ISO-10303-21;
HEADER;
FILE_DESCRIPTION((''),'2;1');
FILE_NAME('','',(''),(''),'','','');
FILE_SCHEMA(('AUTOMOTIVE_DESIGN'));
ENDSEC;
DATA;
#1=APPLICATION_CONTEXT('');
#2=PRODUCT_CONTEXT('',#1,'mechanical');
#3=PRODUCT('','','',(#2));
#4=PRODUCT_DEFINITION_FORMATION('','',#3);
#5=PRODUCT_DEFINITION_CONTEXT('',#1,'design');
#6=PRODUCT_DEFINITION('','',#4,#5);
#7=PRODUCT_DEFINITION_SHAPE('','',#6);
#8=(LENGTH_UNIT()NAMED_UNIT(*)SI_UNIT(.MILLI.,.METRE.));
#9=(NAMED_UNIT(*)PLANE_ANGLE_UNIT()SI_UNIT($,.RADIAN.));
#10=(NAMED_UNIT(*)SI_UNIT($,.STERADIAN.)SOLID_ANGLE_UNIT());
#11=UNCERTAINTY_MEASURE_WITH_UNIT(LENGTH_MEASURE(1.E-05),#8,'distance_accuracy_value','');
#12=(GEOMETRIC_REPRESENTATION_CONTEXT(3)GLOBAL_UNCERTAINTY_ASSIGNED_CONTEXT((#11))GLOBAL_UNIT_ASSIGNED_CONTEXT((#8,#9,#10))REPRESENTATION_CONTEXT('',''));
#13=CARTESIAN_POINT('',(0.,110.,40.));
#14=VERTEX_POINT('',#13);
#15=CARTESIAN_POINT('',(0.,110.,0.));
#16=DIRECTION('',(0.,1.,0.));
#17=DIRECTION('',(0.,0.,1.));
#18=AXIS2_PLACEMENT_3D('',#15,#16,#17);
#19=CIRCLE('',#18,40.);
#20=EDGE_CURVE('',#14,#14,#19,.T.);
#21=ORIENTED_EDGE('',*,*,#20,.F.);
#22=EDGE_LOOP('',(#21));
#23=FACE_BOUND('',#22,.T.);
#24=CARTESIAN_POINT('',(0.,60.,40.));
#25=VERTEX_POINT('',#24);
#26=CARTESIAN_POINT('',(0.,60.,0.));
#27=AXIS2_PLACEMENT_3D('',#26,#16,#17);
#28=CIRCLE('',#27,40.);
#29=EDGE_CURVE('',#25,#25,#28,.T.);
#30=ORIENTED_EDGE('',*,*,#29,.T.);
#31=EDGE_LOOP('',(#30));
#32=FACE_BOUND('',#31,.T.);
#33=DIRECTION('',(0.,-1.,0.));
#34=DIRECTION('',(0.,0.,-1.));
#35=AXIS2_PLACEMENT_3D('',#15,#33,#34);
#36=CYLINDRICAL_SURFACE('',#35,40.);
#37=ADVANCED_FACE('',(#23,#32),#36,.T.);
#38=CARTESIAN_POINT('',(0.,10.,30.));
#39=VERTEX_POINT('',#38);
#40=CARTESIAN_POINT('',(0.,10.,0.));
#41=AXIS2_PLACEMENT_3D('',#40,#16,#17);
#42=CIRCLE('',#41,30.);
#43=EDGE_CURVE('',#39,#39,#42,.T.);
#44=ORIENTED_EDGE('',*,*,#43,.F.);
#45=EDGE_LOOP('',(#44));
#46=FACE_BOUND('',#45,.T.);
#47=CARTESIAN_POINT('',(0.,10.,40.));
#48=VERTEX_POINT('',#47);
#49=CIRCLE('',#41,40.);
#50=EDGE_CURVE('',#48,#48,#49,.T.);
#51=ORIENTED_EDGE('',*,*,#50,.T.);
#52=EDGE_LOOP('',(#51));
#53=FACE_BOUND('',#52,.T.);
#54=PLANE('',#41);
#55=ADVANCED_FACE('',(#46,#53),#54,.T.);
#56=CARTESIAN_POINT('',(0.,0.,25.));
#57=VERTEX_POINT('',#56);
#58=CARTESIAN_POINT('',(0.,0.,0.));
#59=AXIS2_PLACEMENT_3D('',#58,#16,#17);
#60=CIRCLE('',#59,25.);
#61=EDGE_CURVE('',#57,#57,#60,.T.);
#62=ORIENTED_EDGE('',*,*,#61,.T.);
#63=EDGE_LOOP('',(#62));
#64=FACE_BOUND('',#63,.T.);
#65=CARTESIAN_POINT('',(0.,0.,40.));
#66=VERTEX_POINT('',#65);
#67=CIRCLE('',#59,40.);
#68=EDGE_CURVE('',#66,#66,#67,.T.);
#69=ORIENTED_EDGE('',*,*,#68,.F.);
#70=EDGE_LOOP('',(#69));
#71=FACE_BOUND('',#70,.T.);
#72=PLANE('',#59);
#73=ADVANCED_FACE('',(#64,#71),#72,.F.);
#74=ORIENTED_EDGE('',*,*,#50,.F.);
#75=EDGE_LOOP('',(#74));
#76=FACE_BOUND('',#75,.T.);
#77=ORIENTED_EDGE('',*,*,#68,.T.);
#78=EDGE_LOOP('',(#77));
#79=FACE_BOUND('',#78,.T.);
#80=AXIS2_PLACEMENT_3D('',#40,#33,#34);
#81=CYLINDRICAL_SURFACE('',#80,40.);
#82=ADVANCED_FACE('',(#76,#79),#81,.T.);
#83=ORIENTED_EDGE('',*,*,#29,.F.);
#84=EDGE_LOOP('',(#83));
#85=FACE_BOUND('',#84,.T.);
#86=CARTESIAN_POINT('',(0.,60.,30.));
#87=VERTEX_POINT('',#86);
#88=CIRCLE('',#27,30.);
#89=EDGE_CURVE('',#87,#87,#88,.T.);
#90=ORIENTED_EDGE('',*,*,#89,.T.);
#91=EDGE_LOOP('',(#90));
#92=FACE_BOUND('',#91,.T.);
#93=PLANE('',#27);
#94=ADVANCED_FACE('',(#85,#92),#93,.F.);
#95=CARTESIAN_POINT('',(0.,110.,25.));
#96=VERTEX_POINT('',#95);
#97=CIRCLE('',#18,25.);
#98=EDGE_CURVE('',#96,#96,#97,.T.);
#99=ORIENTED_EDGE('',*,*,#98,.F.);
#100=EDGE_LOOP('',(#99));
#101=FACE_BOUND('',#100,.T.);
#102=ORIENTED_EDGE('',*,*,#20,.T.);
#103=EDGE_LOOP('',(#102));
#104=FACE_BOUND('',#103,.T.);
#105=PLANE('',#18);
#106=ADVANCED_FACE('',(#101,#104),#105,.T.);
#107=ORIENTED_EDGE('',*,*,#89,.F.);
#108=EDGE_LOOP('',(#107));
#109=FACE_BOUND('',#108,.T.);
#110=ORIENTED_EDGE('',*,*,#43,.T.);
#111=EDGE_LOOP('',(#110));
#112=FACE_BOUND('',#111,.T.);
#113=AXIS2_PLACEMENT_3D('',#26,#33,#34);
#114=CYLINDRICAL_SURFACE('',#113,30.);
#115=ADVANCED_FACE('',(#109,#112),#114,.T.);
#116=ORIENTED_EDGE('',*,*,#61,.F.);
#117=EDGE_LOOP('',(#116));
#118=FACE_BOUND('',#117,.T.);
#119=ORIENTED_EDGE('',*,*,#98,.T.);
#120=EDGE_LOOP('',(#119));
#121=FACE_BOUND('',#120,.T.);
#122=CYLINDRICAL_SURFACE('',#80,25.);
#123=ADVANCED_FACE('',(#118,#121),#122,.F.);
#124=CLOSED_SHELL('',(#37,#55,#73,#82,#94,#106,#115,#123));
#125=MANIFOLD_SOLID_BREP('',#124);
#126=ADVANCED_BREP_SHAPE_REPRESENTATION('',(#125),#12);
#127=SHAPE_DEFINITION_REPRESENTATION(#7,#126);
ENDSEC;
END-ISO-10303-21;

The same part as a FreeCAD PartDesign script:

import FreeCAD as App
import Part
import Sketcher
Q = App.Units.Quantity

doc = App.newDocument("Part")
body = doc.addObject("PartDesign::Body", "Body")

# Sketch on XZ plane
sketch1 = doc.addObject("Sketcher::SketchObject", "Sketch")
body.addObject(sketch1)
sketch1.AttachmentSupport = (doc.XZ_Plane, [""])
sketch1.MapMode = "FlatFace"
sketch1.addGeometry([
    Part.Circle(App.Vector(0, 0, 0), App.Vector(0, 0, 1), 40),
    Part.Circle(App.Vector(0, 0, 0), App.Vector(0, 0, 1), 25),
], False)
sketch1.addConstraint([
    Sketcher.Constraint("Coincident", 0, 3, -1, 1),
    Sketcher.Constraint("Coincident", 1, 3, -1, 1),
    Sketcher.Constraint("Diameter", 0, Q("80 mm")),
    Sketcher.Constraint("Diameter", 1, Q("50 mm")),
])
pad1 = doc.addObject("PartDesign::Pad", "Pad")
body.addObject(pad1)
pad1.Profile = sketch1
pad1.Length = 10
pad1.Reversed = True

# Sketch on XZ plane
sketch2 = doc.addObject("Sketcher::SketchObject", "Sketch001")
body.addObject(sketch2)
sketch2.AttachmentSupport = (doc.XZ_Plane, [""])
sketch2.MapMode = "FlatFace"
sketch2.AttachmentOffset = App.Placement(App.Vector(0, 0, -10), App.Rotation())
sketch2.addGeometry([
    Part.Circle(App.Vector(0, 0, 0), App.Vector(0, 0, 1), 30),
    Part.Circle(App.Vector(0, 0, 0), App.Vector(0, 0, 1), 25),
], False)
sketch2.addConstraint([
    Sketcher.Constraint("Coincident", 0, 3, -1, 1),
    Sketcher.Constraint("Coincident", 1, 3, -1, 1),
    Sketcher.Constraint("Diameter", 0, Q("60 mm")),
    Sketcher.Constraint("Diameter", 1, Q("50 mm")),
])
pad2 = doc.addObject("PartDesign::Pad", "Pad001")
body.addObject(pad2)
pad2.Profile = sketch2
pad2.Length = 50
pad2.Reversed = True

# Sketch on XZ plane
sketch3 = doc.addObject("Sketcher::SketchObject", "Sketch002")
body.addObject(sketch3)
sketch3.AttachmentSupport = (doc.XZ_Plane, [""])
sketch3.MapMode = "FlatFace"
sketch3.AttachmentOffset = App.Placement(App.Vector(0, 0, -60), App.Rotation())
sketch3.addGeometry([
    Part.Circle(App.Vector(0, 0, 0), App.Vector(0, 0, 1), 40),
    Part.Circle(App.Vector(0, 0, 0), App.Vector(0, 0, 1), 25),
], False)
sketch3.addConstraint([
    Sketcher.Constraint("Coincident", 0, 3, -1, 1),
    Sketcher.Constraint("Coincident", 1, 3, -1, 1),
    Sketcher.Constraint("Diameter", 0, Q("80 mm")),
    Sketcher.Constraint("Diameter", 1, Q("50 mm")),
])
pad3 = doc.addObject("PartDesign::Pad", "Pad002")
body.addObject(pad3)
pad3.Profile = sketch3
pad3.Length = 50
pad3.Reversed = True

doc.recompute()
